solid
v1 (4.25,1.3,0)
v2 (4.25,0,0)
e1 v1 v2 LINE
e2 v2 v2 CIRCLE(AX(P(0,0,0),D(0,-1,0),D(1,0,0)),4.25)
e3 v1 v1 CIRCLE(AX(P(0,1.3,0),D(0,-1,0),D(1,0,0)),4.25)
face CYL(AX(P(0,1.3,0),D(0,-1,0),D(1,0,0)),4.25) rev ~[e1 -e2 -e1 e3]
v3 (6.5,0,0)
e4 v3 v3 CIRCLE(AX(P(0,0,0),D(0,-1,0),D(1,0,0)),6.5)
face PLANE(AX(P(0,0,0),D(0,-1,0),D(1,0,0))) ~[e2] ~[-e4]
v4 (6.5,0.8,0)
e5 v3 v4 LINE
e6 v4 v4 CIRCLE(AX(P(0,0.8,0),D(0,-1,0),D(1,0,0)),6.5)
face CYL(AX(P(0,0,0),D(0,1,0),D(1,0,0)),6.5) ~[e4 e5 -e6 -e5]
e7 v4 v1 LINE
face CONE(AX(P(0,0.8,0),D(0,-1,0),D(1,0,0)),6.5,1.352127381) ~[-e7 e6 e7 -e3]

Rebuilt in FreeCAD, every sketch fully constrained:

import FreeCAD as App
import Part
import Sketcher


def add_polygon(sketch, points):
    """Adds a closed chain of lines whose ends are joined by coincident constraints."""
    first, n = sketch.GeometryCount, len(points)
    for a, b in zip(points, points[1:] + points[:1]):
        sketch.addGeometry(Part.LineSegment(App.Vector(*a, 0), App.Vector(*b, 0)), False)
    for i in range(n):
        sketch.addConstraint(Sketcher.Constraint("Coincident", first + i, 2, first + (i + 1) % n, 1))

doc = App.newDocument("Part")
params = doc.addObject("Spreadsheet::Sheet", "Params")
for row, (alias, value) in enumerate([
    ("sketch1_height", "1.3 mm"),
    ("sketch1_height2", "0.8 mm"),
    ("sketch1_width", "2.25 mm"),
    ("revolution_angle", "360 deg"),
], start=1):
    params.set(f"A{row}", alias)
    params.set(f"B{row}", "=" + value)
    params.setAlias(f"B{row}", alias)

body = doc.addObject("PartDesign::Body", "Body")

sketch1 = body.newObject("Sketcher::SketchObject", "Sketch")
sketch1.AttachmentSupport = (doc.getObject("XY_Plane"), [""])
sketch1.MapMode = "FlatFace"
add_polygon(sketch1, [(6.5, 0.8), (4.2, 1.3), (4.2, 0), (6.5, 0)])
sketch1.addConstraint([
    Sketcher.Constraint("Vertical", 1),
    Sketcher.Constraint("Horizontal", 2),
    Sketcher.Constraint("Vertical", 3),
    Sketcher.Constraint("PointOnObject", 1, 2, -1),
    Sketcher.Constraint("DistanceY", 1, 2, 1, 1, 1.3),
    Sketcher.Constraint("DistanceY", 3, 1, 3, 2, 0.8),
    Sketcher.Constraint("DistanceX", 2, 1, 2, 2, 2.25),
    Sketcher.Constraint("DistanceX", -1, 1, 2, 2, 6.5),
])
sketch1.setExpression("Constraints[8]", "Params.sketch1_height")
sketch1.setExpression("Constraints[9]", "Params.sketch1_height2")
sketch1.setExpression("Constraints[10]", "Params.sketch1_width")
revolution = body.newObject("PartDesign::Revolution", "Revolution")
revolution.Profile = sketch1
revolution.ReferenceAxis = (sketch1, ["V_Axis"])
revolution.setExpression("Angle", "Params.revolution_angle")

doc.recompute()
